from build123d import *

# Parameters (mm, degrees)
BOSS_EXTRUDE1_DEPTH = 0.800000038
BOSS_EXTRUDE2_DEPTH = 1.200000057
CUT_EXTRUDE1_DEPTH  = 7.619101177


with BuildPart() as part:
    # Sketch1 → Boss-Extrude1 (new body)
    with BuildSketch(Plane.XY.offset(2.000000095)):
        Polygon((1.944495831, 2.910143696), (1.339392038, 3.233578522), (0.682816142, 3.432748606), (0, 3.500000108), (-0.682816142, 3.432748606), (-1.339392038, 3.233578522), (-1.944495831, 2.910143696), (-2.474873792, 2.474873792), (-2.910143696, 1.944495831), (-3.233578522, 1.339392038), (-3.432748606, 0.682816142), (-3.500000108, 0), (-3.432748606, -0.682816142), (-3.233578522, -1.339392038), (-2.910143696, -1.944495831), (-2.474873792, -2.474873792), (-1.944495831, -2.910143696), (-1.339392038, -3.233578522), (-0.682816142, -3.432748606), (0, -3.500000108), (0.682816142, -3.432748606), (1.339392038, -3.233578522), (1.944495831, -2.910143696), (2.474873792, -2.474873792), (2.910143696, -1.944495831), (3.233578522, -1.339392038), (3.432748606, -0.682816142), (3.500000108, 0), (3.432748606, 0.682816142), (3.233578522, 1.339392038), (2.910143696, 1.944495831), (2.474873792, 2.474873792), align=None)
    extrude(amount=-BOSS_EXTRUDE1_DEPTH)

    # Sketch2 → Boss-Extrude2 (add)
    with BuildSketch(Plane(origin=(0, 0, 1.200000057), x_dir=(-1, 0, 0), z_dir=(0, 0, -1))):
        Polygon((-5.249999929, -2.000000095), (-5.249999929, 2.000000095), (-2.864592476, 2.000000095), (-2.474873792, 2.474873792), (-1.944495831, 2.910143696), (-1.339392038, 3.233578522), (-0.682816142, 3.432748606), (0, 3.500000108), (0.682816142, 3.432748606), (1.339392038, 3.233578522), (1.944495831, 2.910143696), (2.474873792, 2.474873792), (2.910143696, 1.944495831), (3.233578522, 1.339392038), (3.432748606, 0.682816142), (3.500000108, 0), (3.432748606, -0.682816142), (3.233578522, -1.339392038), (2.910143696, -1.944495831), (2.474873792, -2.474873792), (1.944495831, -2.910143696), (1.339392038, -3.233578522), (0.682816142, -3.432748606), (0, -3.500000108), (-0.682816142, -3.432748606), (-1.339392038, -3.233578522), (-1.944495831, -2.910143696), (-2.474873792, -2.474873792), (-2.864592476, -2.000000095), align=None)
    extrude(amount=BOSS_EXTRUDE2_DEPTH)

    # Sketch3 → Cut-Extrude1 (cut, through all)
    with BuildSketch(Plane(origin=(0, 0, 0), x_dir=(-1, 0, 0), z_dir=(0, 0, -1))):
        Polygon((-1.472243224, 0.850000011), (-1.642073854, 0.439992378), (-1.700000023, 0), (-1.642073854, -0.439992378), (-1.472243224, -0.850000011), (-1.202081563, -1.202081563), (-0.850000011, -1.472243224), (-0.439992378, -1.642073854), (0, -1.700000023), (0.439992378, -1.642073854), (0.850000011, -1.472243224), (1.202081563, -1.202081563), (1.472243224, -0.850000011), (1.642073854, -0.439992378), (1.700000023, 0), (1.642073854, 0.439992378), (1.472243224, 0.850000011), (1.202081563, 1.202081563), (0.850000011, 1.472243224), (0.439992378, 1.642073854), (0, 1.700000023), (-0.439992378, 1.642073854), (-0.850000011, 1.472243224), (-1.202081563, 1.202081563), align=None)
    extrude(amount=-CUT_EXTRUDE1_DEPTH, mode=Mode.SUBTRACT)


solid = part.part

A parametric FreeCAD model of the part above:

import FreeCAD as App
import Part
import Sketcher
from FreeCAD import Vector
Q = App.Units.Quantity


def add_polygon(sketch, points):
    """Adds a closed chain of lines whose ends are joined by coincident constraints."""
    first, n = sketch.GeometryCount, len(points)
    for a, b in zip(points, points[1:] + points[:1]):
        sketch.addGeometry(Part.LineSegment(App.Vector(*a, 0), App.Vector(*b, 0)), False)
    for i in range(n):
        sketch.addConstraint(Sketcher.Constraint("Coincident", first + i, 2, first + (i + 1) % n, 1))

doc = App.newDocument("Part")
params = doc.addObject("Spreadsheet::Sheet", "Params")
for row, (alias, value) in enumerate([
    ("pad1_length", "0.8 mm"),
    ("sketch2_height", "4 mm"),
    ("pad2_length", "1.2 mm"),
], start=1):
    params.set(f"A{row}", alias)
    params.set(f"B{row}", "=" + value)
    params.setAlias(f"B{row}", alias)

body = doc.addObject("PartDesign::Body", "Body")

sketch1 = body.newObject("Sketcher::SketchObject", "Sketch")
sketch1.AttachmentSupport = (doc.getObject("XY_Plane"), [""])
sketch1.MapMode = "FlatFace"
sketch1.AttachmentOffset = App.Placement(Vector(0, 0, 2), App.Rotation())
add_polygon(sketch1, [(1.9, 2.9), (1.3, 3.2), (0.7, 3.4), (0, 3.5), (-0.7, 3.4), (-1.3, 3.2), (-1.9, 2.9), (-2.5, 2.5), (-2.9, 1.9), (-3.2, 1.3), (-3.4, 0.7), (-3.5, 0), (-3.4, -0.7), (-3.2, -1.3), (-2.9, -1.9), (-2.5, -2.5), (-1.9, -2.9), (-1.3, -3.2), (-0.7, -3.4), (0, -3.5), (0.7, -3.4), (1.3, -3.2), (1.9, -2.9), (2.5, -2.5), (2.9, -1.9), (3.2, -1.3), (3.4, -0.7), (3.5, 0), (3.4, 0.7), (3.2, 1.3), (2.9, 1.9), (2.5, 2.5)])
sketch1.addConstraint([
    Sketcher.Constraint("Symmetric", 0, 2, 16, 2, -1, 1),
    Sketcher.Constraint("Symmetric", 1, 2, 17, 2, -1, 1),
    Sketcher.Constraint("Symmetric", 2, 2, 18, 2, -1, 1),
    Sketcher.Constraint("Symmetric", 3, 2, 19, 2, -1, 1),
    Sketcher.Constraint("Symmetric", 4, 2, 20, 2, -1, 1),
    Sketcher.Constraint("Symmetric", 5, 2, 21, 2, -1, 1),
    Sketcher.Constraint("Symmetric", 6, 2, 22, 2, -1, 1),
    Sketcher.Constraint("Symmetric", 7, 2, 23, 2, -1, 1),
    Sketcher.Constraint("Symmetric", 8, 2, 24, 2, -1, 1),
    Sketcher.Constraint("Symmetric", 9, 2, 25, 2, -1, 1),
    Sketcher.Constraint("Symmetric", 10, 2, 26, 2, -1, 1),
    Sketcher.Constraint("Symmetric", 11, 2, 27, 2, -1, 1),
    Sketcher.Constraint("Symmetric", 12, 2, 28, 2, -1, 1),
    Sketcher.Constraint("Symmetric", 13, 2, 29, 2, -1, 1),
    Sketcher.Constraint("Symmetric", 14, 2, 30, 2, -1, 1),
    Sketcher.Constraint("Symmetric", 15, 2, 31, 2, -1, 1),
    Sketcher.Constraint("Symmetric", 1, 2, 3, 2, -2),
    Sketcher.Constraint("Symmetric", 0, 2, 4, 2, -2),
    Sketcher.Constraint("Symmetric", 15, 2, 21, 2, -2),
    Sketcher.Constraint("Symmetric", 14, 2, 22, 2, -2),
    Sketcher.Constraint("Symmetric", 13, 2, 23, 2, -2),
    Sketcher.Constraint("Symmetric", 12, 2, 24, 2, -2),
    Sketcher.Constraint("Symmetric", 11, 2, 25, 2, -2),
    Sketcher.Constraint("PointOnObject", 2, 2, -2),
    Sketcher.Constraint("PointOnObject", 10, 2, -1),
    Sketcher.Constraint("Perpendicular", 0, 8),
    Sketcher.Constraint("Perpendicular", 1, 9),
    Sketcher.Constraint("Perpendicular", 2, 10),
    Sketcher.Constraint("Perpendicular", 6, 14),
    Sketcher.Constraint("Equal", 0, 1),
    Sketcher.Constraint("Equal", 1, 2),
    Sketcher.Constraint("Equal", 5, 6),
    Sketcher.Constraint("Equal", 6, 7),
    Sketcher.Constraint("Equal", 7, 8),
    Sketcher.Constraint("Equal", 8, 9),
    Sketcher.Constraint("Equal", 9, 10),
    Sketcher.Constraint("DistanceY", -1, 1, 2, 2, 3.5),
    Sketcher.Constraint("Distance", 0, 0.68612),
    Sketcher.Constraint("DistanceY", -1, 1, 0, 2, 3.233579),
    Sketcher.Constraint("DistanceY", -1, 1, 1, 2, 3.432749),
    Sketcher.Constraint("DistanceX", 5, 2, 3, 2, 1.26168),
])
pad1 = body.newObject("PartDesign::Pad", "Pad")
pad1.Profile = sketch1
pad1.setExpression("Length", "Params.pad1_length")
pad1.Reversed = True

sketch2 = body.newObject("Sketcher::SketchObject", "Sketch001")
sketch2.AttachmentSupport = (doc.getObject("XY_Plane"), [""])
sketch2.MapMode = "FlatFace"
sketch2.AttachmentOffset = App.Placement(Vector(0, 0, 1.2), App.Rotation())
add_polygon(sketch2, [(5.2, 2), (5.2, -2), (2.9, -2), (2.5, -2.5), (1.9, -2.9), (1.3, -3.2), (0.7, -3.4), (0, -3.5), (-0.7, -3.4), (-1.3, -3.2), (-1.9, -2.9), (-2.5, -2.5), (-2.9, -1.9), (-3.2, -1.3), (-3.4, -0.7), (-3.5, 0), (-3.4, 0.7), (-3.2, 1.3), (-2.9, 1.9), (-2.5, 2.5), (-1.9, 2.9), (-1.3, 3.2), (-0.7, 3.4), (0, 3.5), (0.7, 3.4), (1.3, 3.2), (1.9, 2.9), (2.5, 2.5), (2.9, 2)])
sketch2.addConstraint([
    Sketcher.Constraint("Vertical", 0),
    Sketcher.Constraint("Horizontal", 1),
    Sketcher.Constraint("Horizontal", 28),
    Sketcher.Constraint("Symmetric", 2, 2, 18, 2, -1, 1),
    Sketcher.Constraint("Symmetric", 3, 2, 19, 2, -1, 1),
    Sketcher.Constraint("Symmetric", 4, 2, 20, 2, -1, 1),
    Sketcher.Constraint("Symmetric", 5, 2, 21, 2, -1, 1),
    Sketcher.Constraint("Symmetric", 6, 2, 22, 2, -1, 1),
    Sketcher.Constraint("Symmetric", 7, 2, 23, 2, -1, 1),
    Sketcher.Constraint("Symmetric", 8, 2, 24, 2, -1, 1),
    Sketcher.Constraint("Symmetric", 9, 2, 25, 2, -1, 1),
    Sketcher.Constraint("Symmetric", 10, 2, 26, 2, -1, 1),
    Sketcher.Constraint("Symmetric", 5, 2, 7, 2, -2),
    Sketcher.Constraint("Symmetric", 4, 2, 8, 2, -2),
    Sketcher.Constraint("Symmetric", 3, 2, 9, 2, -2),
    Sketcher.Constraint("Symmetric", 2, 2, 10, 2, -2),
    Sketcher.Constraint("Symmetric", 13, 2, 15, 2, -1),
    Sketcher.Constraint("Symmetric", 12, 2, 16, 2, -1),
    Sketcher.Constraint("Symmetric", 11, 2, 17, 2, -1),
    Sketcher.Constraint("Symmetric", 1, 2, 27, 2, -1),
    Sketcher.Constraint("PointOnObject", 6, 2, -2),
    Sketcher.Constraint("PointOnObject", 14, 2, -1),
    Sketcher.Constraint("Perpendicular", 2, 10),
    Sketcher.Constraint("Perpendicular", 3, 11),
    Sketcher.Constraint("Perpendicular", 4, 12),
    Sketcher.Constraint("Perpendicular", 5, 13),
    Sketcher.Constraint("Perpendicular", 6, 14),
    Sketcher.Constraint("Equal", 3, 4),
    Sketcher.Constraint("Equal", 4, 5),
    Sketcher.Constraint("Equal", 5, 6),
    Sketcher.Constraint("Equal", 10, 11),
    Sketcher.Constraint("Equal", 11, 12),
    Sketcher.Constraint("Equal", 12, 13),
    Sketcher.Constraint("Equal", 13, 14),
    Sketcher.Constraint("DistanceY", 0, 2, 0, 1, 4.0),
    Sketcher.Constraint("DistanceY", 6, 2, -1, 1, 3.5),
    Sketcher.Constraint("DistanceX", -1, 1, 0, 2, 5.25),
    Sketcher.Constraint("DistanceX", 4, 2, 1, 2, 1.5252),
    Sketcher.Constraint("Distance", 3, 0.68612),
    Sketcher.Constraint("DistanceX", 1, 2, 1, 1, 2.385407),
    Sketcher.Constraint("DistanceY", 4, 2, -1, 1, 3.233579),
])
sketch2.setExpression("Constraints[63]", "Params.sketch2_height")
pad2 = body.newObject("PartDesign::Pad", "Pad001")
pad2.Profile = sketch2
pad2.setExpression("Length", "Params.pad2_length")
pad2.Reversed = True

sketch3 = body.newObject("Sketcher::SketchObject", "Sketch002")
sketch3.AttachmentSupport = (doc.getObject("XY_Plane"), [""])
sketch3.MapMode = "FlatFace"
add_polygon(sketch3, [(1.47, 0.85), (1.64, 0.44), (1.7, 0), (1.64, -0.44), (1.47, -0.85), (1.2, -1.2), (0.85, -1.47), (0.44, -1.64), (0, -1.7), (-0.44, -1.64), (-0.85, -1.47), (-1.2, -1.2), (-1.47, -0.85), (-1.64, -0.44), (-1.7, 0), (-1.64, 0.44), (-1.47, 0.85), (-1.2, 1.2), (-0.85, 1.47), (-0.44, 1.64), (0, 1.7), (0.44, 1.64), (0.85, 1.47), (1.2, 1.2)])
sketch3.addConstraint([
    Sketcher.Constraint("Symmetric", 0, 2, 12, 2, -1, 1),
    Sketcher.Constraint("Symmetric", 1, 2, 13, 2, -1, 1),
    Sketcher.Constraint("Symmetric", 2, 2, 14, 2, -1, 1),
    Sketcher.Constraint("Symmetric", 3, 2, 15, 2, -1, 1),
    Sketcher.Constraint("Symmetric", 4, 2, 16, 2, -1, 1),
    Sketcher.Constraint("Symmetric", 5, 2, 17, 2, -1, 1),
    Sketcher.Constraint("Symmetric", 6, 2, 18, 2, -1, 1),
    Sketcher.Constraint("Symmetric", 7, 2, 19, 2, -1, 1),
    Sketcher.Constraint("Symmetric", 8, 2, 20, 2, -1, 1),
    Sketcher.Constraint("Symmetric", 9, 2, 21, 2, -1, 1),
    Sketcher.Constraint("Symmetric", 10, 2, 22, 2, -1, 1),
    Sketcher.Constraint("Symmetric", 11, 2, 23, 2, -1, 1),
    Sketcher.Constraint("Symmetric", 6, 2, 8, 2, -2),
    Sketcher.Constraint("Symmetric", 5, 2, 9, 2, -2),
    Sketcher.Constraint("Symmetric", 4, 2, 10, 2, -2),
    Sketcher.Constraint("Symmetric", 3, 2, 11, 2, -2),
    Sketcher.Constraint("Symmetric", 2, 2, 12, 2, -2),
    Sketcher.Constraint("PointOnObject", 1, 2, -1),
    Sketcher.Constraint("PointOnObject", 7, 2, -2),
    Sketcher.Constraint("Perpendicular", 0, 6),
    Sketcher.Constraint("Perpendicular", 1, 7),
    Sketcher.Constraint("Perpendicular", 4, 10),
    Sketcher.Constraint("Equal", 0, 1),
    Sketcher.Constraint("Equal", 3, 4),
    Sketcher.Constraint("Equal", 4, 5),
    Sketcher.Constraint("Equal", 5, 6),
    Sketcher.Constraint("Equal", 6, 7),
    Sketcher.Constraint("Angle", 0, Q("-67.500011 deg")),
    Sketcher.Constraint("Angle", 1, Q("-82.499991 deg")),
    Sketcher.Constraint("Angle", 4, Q("-127.499998 deg")),
    Sketcher.Constraint("DistanceX", -1, 1, 1, 2, 1.7),
])
pocket1 = body.newObject("PartDesign::Pocket", "Pocket")
pocket1.Profile = sketch3
pocket1.Type = "ThroughAll"
pocket1.Reversed = True

doc.recompute()
